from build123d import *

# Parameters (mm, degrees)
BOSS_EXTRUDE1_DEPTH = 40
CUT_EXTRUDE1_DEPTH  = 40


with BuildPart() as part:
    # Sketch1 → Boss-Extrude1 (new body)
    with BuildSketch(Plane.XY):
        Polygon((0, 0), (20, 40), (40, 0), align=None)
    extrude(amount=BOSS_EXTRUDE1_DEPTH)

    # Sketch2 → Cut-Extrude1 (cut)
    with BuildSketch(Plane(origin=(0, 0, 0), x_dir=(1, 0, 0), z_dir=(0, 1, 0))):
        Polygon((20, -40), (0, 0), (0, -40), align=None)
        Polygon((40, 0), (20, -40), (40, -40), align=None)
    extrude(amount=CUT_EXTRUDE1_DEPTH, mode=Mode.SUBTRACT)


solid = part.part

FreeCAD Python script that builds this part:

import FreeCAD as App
import Part
import Sketcher
from FreeCAD import Vector

doc = App.newDocument("Part")
params = doc.addObject("Spreadsheet::Sheet", "Params")
for row, (alias, value) in enumerate([
    ("sketch1_width", "40 mm"),
    ("pad1_length", "40 mm"),
    ("sketch2_width", "20 mm"),
    ("sketch2_height", "40 mm"),
    ("pocket1_length", "40 mm"),
], start=1):
    params.set(f"A{row}", alias)
    params.set(f"B{row}", "=" + value)
    params.setAlias(f"B{row}", alias)

body = doc.addObject("PartDesign::Body", "Body")

# Sketch on XY plane
sketch1 = body.newObject("Sketcher::SketchObject", "Sketch")
sketch1.AttachmentSupport = (doc.getObject("XY_Plane"), [""])
sketch1.MapMode = "FlatFace"
sketch1.addGeometry([
    Part.LineSegment(Vector(20, 40, 0), Vector(0, 0, 0)),
    Part.LineSegment(Vector(0, 0, 0), Vector(40, 0, 0)),
    Part.LineSegment(Vector(40, 0, 0), Vector(20, 40, 0)),
], False)
sketch1.addConstraint([
    Sketcher.Constraint("Coincident", 0, 2, 1, 1),
    Sketcher.Constraint("Coincident", 1, 2, 2, 1),
    Sketcher.Constraint("Coincident", 2, 2, 0, 1),
    Sketcher.Constraint("Horizontal", 1),
    Sketcher.Constraint("Coincident", 0, 2, -1, 1),
    Sketcher.Constraint("Equal", 0, 2),
    Sketcher.Constraint("DistanceX", 1, 1, 1, 2, 40.0),
    Sketcher.Constraint("DistanceY", -1, 1, 2, 2, 40.0),
])
sketch1.setExpression("Constraints[6]", "Params.sketch1_width")
pad1 = body.newObject("PartDesign::Pad", "Pad")
pad1.Profile = sketch1
pad1.setExpression("Length", "Params.pad1_length")

# Sketch on XZ plane
sketch2 = body.newObject("Sketcher::SketchObject", "Sketch001")
sketch2.AttachmentSupport = (doc.getObject("XZ_Plane"), [""])
sketch2.MapMode = "FlatFace"
sketch2.addGeometry([
    Part.LineSegment(Vector(20, 40, 0), Vector(0, 0, 0)),  # 0
    Part.LineSegment(Vector(0, 0, 0), Vector(0, 40, 0)),  # 1
    Part.LineSegment(Vector(0, 40, 0), Vector(20, 40, 0)),  # 2
    Part.LineSegment(Vector(40, 0, 0), Vector(20, 40, 0)),  # 3
    Part.LineSegment(Vector(20, 40, 0), Vector(40, 40, 0)),  # 4
    Part.LineSegment(Vector(40, 40, 0), Vector(40, 0, 0)),  # 5
], False)
sketch2.addConstraint([
    Sketcher.Constraint("Coincident", 0, 2, 1, 1),
    Sketcher.Constraint("Coincident", 1, 2, 2, 1),
    Sketcher.Constraint("Coincident", 2, 2, 0, 1),
    Sketcher.Constraint("Coincident", 3, 2, 4, 1),
    Sketcher.Constraint("Coincident", 4, 2, 5, 1),
    Sketcher.Constraint("Coincident", 5, 2, 3, 1),
    Sketcher.Constraint("Vertical", 1),
    Sketcher.Constraint("Horizontal", 2),
    Sketcher.Constraint("Horizontal", 4),
    Sketcher.Constraint("Vertical", 5),
    Sketcher.Constraint("Coincident", 0, 2, -1, 1),
    Sketcher.Constraint("Coincident", 3, 2, 2, 2),
    Sketcher.Constraint("PointOnObject", 5, 2, -1),
    Sketcher.Constraint("Equal", 2, 4),
    Sketcher.Constraint("DistanceX", 2, 1, 2, 2, 20.0),
    Sketcher.Constraint("DistanceY", 1, 1, 1, 2, 40.0),
])
sketch2.setExpression("Constraints[14]", "Params.sketch2_width")
sketch2.setExpression("Constraints[15]", "Params.sketch2_height")
pocket1 = body.newObject("PartDesign::Pocket", "Pocket")
pocket1.Profile = sketch2
pocket1.setExpression("Length", "Params.pocket1_length")

doc.recompute()
